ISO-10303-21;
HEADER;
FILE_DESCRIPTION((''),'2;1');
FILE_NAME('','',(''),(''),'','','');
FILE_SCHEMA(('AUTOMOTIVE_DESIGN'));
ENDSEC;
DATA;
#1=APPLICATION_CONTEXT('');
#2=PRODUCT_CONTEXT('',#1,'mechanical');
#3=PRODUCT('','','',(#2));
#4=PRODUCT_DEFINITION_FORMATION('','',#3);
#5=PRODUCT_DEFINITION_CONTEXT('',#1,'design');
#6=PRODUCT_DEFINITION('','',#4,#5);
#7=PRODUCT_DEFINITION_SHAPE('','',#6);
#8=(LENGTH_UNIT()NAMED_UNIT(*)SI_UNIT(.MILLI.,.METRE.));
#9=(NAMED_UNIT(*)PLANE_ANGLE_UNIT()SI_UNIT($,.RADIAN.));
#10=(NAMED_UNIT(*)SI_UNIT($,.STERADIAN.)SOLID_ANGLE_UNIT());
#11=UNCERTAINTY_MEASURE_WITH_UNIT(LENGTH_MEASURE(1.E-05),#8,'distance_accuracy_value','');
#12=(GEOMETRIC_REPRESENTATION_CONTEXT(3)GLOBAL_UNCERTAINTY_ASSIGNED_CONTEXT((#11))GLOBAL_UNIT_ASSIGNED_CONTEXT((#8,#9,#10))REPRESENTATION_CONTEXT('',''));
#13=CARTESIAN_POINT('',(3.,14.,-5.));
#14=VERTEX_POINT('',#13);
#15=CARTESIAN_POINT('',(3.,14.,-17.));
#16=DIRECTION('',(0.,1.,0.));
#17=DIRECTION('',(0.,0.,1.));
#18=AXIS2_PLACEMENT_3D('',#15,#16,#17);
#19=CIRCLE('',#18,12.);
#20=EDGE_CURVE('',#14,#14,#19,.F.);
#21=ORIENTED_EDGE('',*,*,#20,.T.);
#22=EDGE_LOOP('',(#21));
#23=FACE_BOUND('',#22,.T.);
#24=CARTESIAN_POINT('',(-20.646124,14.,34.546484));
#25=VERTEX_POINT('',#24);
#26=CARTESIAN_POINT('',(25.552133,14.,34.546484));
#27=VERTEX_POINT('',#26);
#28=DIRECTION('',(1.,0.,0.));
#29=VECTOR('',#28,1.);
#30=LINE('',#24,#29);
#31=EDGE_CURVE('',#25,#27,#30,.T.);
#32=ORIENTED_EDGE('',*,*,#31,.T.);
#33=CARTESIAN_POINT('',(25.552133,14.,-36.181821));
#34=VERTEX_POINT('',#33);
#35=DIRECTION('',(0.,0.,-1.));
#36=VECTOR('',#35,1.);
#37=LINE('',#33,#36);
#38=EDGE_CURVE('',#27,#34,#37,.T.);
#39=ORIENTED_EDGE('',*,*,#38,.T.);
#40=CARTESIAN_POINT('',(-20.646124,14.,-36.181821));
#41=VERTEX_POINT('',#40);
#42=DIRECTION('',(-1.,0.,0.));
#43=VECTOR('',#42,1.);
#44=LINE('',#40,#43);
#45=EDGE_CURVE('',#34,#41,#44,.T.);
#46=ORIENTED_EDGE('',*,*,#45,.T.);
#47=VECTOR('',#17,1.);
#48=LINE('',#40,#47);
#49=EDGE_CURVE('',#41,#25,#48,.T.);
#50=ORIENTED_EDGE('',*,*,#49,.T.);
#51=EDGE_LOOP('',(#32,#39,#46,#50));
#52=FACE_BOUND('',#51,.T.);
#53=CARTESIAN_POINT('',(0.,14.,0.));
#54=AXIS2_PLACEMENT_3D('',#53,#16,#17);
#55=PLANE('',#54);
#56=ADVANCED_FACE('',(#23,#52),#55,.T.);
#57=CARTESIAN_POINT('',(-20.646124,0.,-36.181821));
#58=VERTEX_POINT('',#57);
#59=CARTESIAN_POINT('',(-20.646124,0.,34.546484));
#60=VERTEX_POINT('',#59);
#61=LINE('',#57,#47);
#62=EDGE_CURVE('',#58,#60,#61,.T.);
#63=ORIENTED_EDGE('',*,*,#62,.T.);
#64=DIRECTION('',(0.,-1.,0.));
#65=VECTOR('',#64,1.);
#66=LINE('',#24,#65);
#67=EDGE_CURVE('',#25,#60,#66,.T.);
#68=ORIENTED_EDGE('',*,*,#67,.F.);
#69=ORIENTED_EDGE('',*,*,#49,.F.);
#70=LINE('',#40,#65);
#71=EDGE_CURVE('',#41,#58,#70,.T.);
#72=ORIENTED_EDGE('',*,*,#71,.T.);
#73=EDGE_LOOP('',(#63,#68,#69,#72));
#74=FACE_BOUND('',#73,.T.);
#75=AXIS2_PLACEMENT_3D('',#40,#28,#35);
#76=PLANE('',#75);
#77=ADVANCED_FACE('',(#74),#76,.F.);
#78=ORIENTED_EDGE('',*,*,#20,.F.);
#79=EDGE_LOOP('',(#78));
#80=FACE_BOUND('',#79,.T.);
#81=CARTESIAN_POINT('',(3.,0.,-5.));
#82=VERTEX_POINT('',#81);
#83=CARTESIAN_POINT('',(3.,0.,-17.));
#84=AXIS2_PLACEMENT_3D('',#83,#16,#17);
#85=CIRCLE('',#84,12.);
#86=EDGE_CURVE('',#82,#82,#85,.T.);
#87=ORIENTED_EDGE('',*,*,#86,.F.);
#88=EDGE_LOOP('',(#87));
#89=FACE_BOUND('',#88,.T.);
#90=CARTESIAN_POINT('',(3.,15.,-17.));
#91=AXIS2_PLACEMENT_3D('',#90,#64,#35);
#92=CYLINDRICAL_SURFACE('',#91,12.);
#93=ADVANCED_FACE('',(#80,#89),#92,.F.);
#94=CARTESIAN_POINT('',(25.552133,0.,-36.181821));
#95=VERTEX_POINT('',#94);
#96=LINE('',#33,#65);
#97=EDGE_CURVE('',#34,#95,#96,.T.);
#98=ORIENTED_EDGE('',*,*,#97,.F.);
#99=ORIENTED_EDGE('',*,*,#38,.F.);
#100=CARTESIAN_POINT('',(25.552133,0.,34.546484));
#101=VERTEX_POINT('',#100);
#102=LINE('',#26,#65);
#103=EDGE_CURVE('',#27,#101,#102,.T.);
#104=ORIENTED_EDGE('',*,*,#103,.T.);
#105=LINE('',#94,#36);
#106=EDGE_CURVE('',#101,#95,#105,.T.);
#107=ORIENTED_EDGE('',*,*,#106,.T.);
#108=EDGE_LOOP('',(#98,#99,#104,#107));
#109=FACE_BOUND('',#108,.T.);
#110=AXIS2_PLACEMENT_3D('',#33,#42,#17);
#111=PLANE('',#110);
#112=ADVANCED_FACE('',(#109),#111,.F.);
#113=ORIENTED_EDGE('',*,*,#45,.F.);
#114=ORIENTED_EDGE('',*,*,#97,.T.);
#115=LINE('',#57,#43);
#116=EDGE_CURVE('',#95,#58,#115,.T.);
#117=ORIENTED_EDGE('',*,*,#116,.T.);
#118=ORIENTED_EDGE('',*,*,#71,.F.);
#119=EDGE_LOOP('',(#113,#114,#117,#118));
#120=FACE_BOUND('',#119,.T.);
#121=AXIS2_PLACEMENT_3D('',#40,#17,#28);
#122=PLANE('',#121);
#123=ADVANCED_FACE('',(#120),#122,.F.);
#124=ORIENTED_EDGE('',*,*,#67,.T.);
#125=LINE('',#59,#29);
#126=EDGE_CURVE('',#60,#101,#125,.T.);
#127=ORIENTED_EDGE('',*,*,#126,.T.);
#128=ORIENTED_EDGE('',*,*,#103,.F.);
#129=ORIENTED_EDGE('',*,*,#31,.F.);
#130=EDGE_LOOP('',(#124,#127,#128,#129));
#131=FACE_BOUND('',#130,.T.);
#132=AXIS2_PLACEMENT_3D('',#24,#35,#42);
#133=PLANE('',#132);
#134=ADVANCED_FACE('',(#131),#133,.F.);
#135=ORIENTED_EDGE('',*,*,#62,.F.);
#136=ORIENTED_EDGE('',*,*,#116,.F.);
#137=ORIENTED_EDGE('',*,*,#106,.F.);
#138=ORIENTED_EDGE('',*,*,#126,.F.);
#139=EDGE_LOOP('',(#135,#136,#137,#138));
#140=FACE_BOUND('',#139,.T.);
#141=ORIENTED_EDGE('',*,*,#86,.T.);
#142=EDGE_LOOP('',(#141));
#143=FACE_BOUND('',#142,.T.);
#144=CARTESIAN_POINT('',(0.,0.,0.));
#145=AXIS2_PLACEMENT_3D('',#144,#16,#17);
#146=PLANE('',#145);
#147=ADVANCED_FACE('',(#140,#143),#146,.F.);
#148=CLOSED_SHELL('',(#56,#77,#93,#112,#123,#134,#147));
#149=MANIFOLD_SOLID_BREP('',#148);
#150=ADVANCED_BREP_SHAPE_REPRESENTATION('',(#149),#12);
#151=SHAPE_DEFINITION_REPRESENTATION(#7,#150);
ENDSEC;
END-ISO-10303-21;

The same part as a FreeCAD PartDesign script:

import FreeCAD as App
import Part
import Sketcher
Q = App.Units.Quantity

doc = App.newDocument("Part")
body = doc.addObject("PartDesign::Body", "Body")

# Sketch on XZ plane
sketch1 = body.newObject("Sketcher::SketchObject", "Sketch")
sketch1.AttachmentSupport = (doc.getObject("XZ_Plane"), [""])
sketch1.MapMode = "FlatFace"
sketch1.addGeometry([
    Part.LineSegment(App.Vector(-20.646124, -36.181821, 0), App.Vector(-20.646124, 34.546484, 0)),
    Part.LineSegment(App.Vector(-20.646124, 34.546484, 0), App.Vector(25.552133, 34.546484, 0)),
    Part.LineSegment(App.Vector(25.552133, 34.546484, 0), App.Vector(25.552133, -36.181821, 0)),
    Part.LineSegment(App.Vector(25.552133, -36.181821, 0), App.Vector(-20.646124, -36.181821, 0)),
], False)
sketch1.addConstraint([
    Sketcher.Constraint("Coincident", 0, 2, 1, 1),
    Sketcher.Constraint("Coincident", 1, 2, 2, 1),
    Sketcher.Constraint("Coincident", 2, 2, 3, 1),
    Sketcher.Constraint("Coincident", 3, 2, 0, 1),
    Sketcher.Constraint("Vertical", 0),
    Sketcher.Constraint("Horizontal", 1),
    Sketcher.Constraint("Vertical", 2),
    Sketcher.Constraint("Horizontal", 3),
    Sketcher.Constraint("DistanceX", 1, 1, 1, 2, Q("46.198257 mm")),
    Sketcher.Constraint("DistanceY", 0, 1, 0, 2, Q("70.728305 mm")),
    Sketcher.Constraint("DistanceY", 2, 2, -1, 1, Q("36.181821 mm")),
    Sketcher.Constraint("DistanceX", 0, 2, -1, 1, Q("20.646124 mm")),
])
pad1 = body.newObject("PartDesign::Pad", "Pad")
pad1.Profile = sketch1
pad1.Length = 14
pad1.Reversed = True

# Sketch on XZ plane
sketch2 = body.newObject("Sketcher::SketchObject", "Sketch001")
sketch2.AttachmentSupport = (doc.getObject("XZ_Plane"), [""])
sketch2.MapMode = "FlatFace"
sketch2.addGeometry(Part.Circle(App.Vector(3, -17, 0), App.Vector(0, 0, 1), 12), False)
sketch2.addConstraint([
    Sketcher.Constraint("Diameter", 0, Q("24 mm")),
    Sketcher.Constraint("DistanceX", -1, 1, 0, 3, Q("3 mm")),
    Sketcher.Constraint("DistanceY", 0, 3, -1, 1, Q("17 mm")),
])
pocket1 = body.newObject("PartDesign::Pocket", "Pocket")
pocket1.Profile = sketch2
pocket1.Length = 15

doc.recompute()
